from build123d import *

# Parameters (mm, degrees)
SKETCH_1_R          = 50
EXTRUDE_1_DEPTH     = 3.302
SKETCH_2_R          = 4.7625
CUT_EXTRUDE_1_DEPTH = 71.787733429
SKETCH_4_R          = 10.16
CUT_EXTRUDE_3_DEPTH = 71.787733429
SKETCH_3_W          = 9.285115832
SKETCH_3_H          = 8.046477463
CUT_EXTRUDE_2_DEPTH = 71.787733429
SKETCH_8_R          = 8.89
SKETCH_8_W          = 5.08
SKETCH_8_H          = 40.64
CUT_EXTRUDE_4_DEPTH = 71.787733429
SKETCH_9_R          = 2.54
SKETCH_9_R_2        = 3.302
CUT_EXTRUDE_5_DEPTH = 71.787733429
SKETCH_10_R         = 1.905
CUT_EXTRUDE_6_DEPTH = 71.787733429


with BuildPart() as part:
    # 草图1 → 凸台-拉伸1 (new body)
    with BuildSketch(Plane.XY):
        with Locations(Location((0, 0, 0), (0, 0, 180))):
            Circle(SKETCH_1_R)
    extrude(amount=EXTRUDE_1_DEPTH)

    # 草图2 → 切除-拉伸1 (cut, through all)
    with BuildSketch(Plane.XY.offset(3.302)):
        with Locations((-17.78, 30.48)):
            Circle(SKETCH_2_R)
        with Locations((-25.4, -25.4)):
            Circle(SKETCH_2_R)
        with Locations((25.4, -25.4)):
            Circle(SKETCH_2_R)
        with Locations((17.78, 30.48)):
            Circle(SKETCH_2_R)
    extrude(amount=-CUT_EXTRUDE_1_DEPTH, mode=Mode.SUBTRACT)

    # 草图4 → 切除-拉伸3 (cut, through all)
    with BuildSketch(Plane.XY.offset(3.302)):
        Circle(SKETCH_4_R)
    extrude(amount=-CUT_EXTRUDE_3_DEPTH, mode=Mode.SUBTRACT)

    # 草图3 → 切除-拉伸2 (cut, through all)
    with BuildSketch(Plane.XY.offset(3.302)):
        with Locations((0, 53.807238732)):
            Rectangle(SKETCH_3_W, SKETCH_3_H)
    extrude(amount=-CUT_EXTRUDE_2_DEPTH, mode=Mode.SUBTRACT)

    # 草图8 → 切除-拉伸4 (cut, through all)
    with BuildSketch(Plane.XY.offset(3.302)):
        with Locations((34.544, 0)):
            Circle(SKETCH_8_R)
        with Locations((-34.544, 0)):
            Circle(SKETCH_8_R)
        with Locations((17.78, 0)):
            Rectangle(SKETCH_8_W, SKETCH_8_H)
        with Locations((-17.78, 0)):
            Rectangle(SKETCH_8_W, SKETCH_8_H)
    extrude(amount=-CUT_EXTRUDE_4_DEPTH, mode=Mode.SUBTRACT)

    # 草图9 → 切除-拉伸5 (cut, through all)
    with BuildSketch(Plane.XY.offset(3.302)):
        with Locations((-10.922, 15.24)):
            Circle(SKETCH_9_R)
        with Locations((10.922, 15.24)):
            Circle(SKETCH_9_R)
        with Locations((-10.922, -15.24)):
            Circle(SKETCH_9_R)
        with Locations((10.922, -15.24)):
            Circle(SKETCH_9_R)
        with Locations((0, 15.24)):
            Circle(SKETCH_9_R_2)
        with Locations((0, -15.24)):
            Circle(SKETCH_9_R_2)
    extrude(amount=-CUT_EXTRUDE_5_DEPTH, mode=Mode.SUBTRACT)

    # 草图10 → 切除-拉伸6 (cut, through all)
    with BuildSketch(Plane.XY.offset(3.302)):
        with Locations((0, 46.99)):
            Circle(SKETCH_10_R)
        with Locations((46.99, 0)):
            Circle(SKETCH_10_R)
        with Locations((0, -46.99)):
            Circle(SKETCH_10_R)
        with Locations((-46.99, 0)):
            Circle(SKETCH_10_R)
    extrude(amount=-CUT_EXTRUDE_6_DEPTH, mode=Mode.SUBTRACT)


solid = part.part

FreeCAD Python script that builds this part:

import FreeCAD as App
import Part
import Sketcher
from FreeCAD import Vector
Q = App.Units.Quantity


def add_polygon(sketch, points):
    """Adds a closed chain of lines whose ends are joined by coincident constraints."""
    first, n = sketch.GeometryCount, len(points)
    for a, b in zip(points, points[1:] + points[:1]):
        sketch.addGeometry(Part.LineSegment(App.Vector(*a, 0), App.Vector(*b, 0)), False)
    for i in range(n):
        sketch.addConstraint(Sketcher.Constraint("Coincident", first + i, 2, first + (i + 1) % n, 1))

doc = App.newDocument("Part")
body = doc.addObject("PartDesign::Body", "Body")

sketch1 = doc.addObject("Sketcher::SketchObject", "Sketch")
body.addObject(sketch1)
sketch1.AttachmentSupport = (doc.XY_Plane, [""])
sketch1.MapMode = "FlatFace"
sketch1.addGeometry(Part.Circle(Vector(0, 0, 0), Vector(0, 0, 1), 50), False)
sketch1.addConstraint(Sketcher.Constraint("Coincident", 0, 3, -1, 1))
sketch1.addConstraint(Sketcher.Constraint("Diameter", 0, 100.0))
pad1 = doc.addObject("PartDesign::Pad", "Pad")
body.addObject(pad1)
pad1.Profile = sketch1
pad1.Length = Q("0.13 in")

sketch2 = doc.addObject("Sketcher::SketchObject", "Sketch001")
body.addObject(sketch2)
sketch2.AttachmentSupport = (doc.XY_Plane, [""])
sketch2.MapMode = "FlatFace"
sketch2.AttachmentOffset = App.Placement(Vector(0, 0, 0.13 * 25.4), App.Rotation())
sketch2.addGeometry(Part.Circle(Vector(-17.8, 30.5, 0), Vector(0, 0, 1), 4.8), False)
sketch2.addGeometry(Part.Circle(Vector(-25.4, -25.4, 0), Vector(0, 0, 1), 4.8), False)
sketch2.addGeometry(Part.Circle(Vector(25.4, -25.4, 0), Vector(0, 0, 1), 4.8), False)
sketch2.addGeometry(Part.Circle(Vector(17.8, 30.5, 0), Vector(0, 0, 1), 4.8), False)
sketch2.addConstraint(Sketcher.Constraint("Equal", 0, 1))
sketch2.addConstraint(Sketcher.Constraint("Equal", 1, 2))
sketch2.addConstraint(Sketcher.Constraint("Equal", 2, 3))
sketch2.addConstraint(Sketcher.Constraint("Symmetric", 1, 3, 2, 3, -2))
sketch2.addConstraint(Sketcher.Constraint("Symmetric", 0, 3, 3, 3, -2))
sketch2.addConstraint(Sketcher.Constraint("Diameter", 0, Q("0.375 in")))
sketch2.addConstraint(Sketcher.Constraint("DistanceX", 1, 3, -1, 1, Q("1 in")))
sketch2.addConstraint(Sketcher.Constraint("DistanceY", 1, 3, -1, 1, Q("1 in")))
sketch2.addConstraint(Sketcher.Constraint("DistanceX", 0, 3, -1, 1, Q("0.7 in")))
sketch2.addConstraint(Sketcher.Constraint("DistanceY", -1, 1, 0, 3, Q("1.2 in")))
pocket1 = doc.addObject("PartDesign::Pocket", "Pocket")
body.addObject(pocket1)
pocket1.Profile = sketch2
pocket1.Type = "ThroughAll"

sketch3 = doc.addObject("Sketcher::SketchObject", "Sketch002")
body.addObject(sketch3)
sketch3.AttachmentSupport = (doc.XY_Plane, [""])
sketch3.MapMode = "FlatFace"
sketch3.AttachmentOffset = App.Placement(Vector(0, 0, 0.13 * 25.4), App.Rotation())
sketch3.addGeometry(Part.Circle(Vector(0, 0, 0), Vector(0, 0, 1), 10), False)
sketch3.addConstraint(Sketcher.Constraint("Coincident", 0, 3, -1, 1))
sketch3.addConstraint(Sketcher.Constraint("Diameter", 0, Q("0.8 in")))
pocket2 = doc.addObject("PartDesign::Pocket", "Pocket001")
body.addObject(pocket2)
pocket2.Profile = sketch3
pocket2.Type = "ThroughAll"

sketch4 = doc.addObject("Sketcher::SketchObject", "Sketch003")
body.addObject(sketch4)
sketch4.AttachmentSupport = (doc.XY_Plane, [""])
sketch4.MapMode = "FlatFace"
sketch4.AttachmentOffset = App.Placement(Vector(0, 0, 0.13 * 25.4), App.Rotation())
add_polygon(sketch4, [(-5, 58), (-5, 50), (5, 50), (5, 58)])
sketch4.addConstraint(Sketcher.Constraint("Vertical", 0))
sketch4.addConstraint(Sketcher.Constraint("Horizontal", 1))
sketch4.addConstraint(Sketcher.Constraint("Vertical", 2))
sketch4.addConstraint(Sketcher.Constraint("Horizontal", 3))
sketch4.addConstraint(Sketcher.Constraint("DistanceY", -1, 1, 0, 2, Q("1.96 in")))
sketch4.addConstraint(Sketcher.Constraint("DistanceX", 1, 1, 1, 2, 9.285116))
sketch4.addConstraint(Sketcher.Constraint("DistanceY", 0, 2, 0, 1, 8.046477))
sketch4.addConstraint(Sketcher.Constraint("DistanceX", 0, 2, -1, 1, 4.642558))
pocket3 = doc.addObject("PartDesign::Pocket", "Pocket002")
body.addObject(pocket3)
pocket3.Profile = sketch4
pocket3.Type = "ThroughAll"

sketch5 = doc.addObject("Sketcher::SketchObject", "Sketch004")
body.addObject(sketch5)
sketch5.AttachmentSupport = (doc.XY_Plane, [""])
sketch5.MapMode = "FlatFace"
sketch5.AttachmentOffset = App.Placement(Vector(0, 0, 0.13 * 25.4), App.Rotation())
sketch5.addGeometry(Part.Circle(Vector(35, 0, 0), Vector(0, 0, 1), 9), False)
sketch5.addGeometry(Part.Circle(Vector(-35, 0, 0), Vector(0, 0, 1), 9), False)
add_polygon(sketch5, [(15, 20), (15, -20), (20, -20), (20, 20)])
add_polygon(sketch5, [(-20, 20), (-20, -20), (-15, -20), (-15, 20)])
sketch5.addConstraint(Sketcher.Constraint("Vertical", 2))
sketch5.addConstraint(Sketcher.Constraint("Horizontal", 3))
sketch5.addConstraint(Sketcher.Constraint("Vertical", 4))
sketch5.addConstraint(Sketcher.Constraint("Horizontal", 5))
sketch5.addConstraint(Sketcher.Constraint("Vertical", 6))
sketch5.addConstraint(Sketcher.Constraint("Horizontal", 7))
sketch5.addConstraint(Sketcher.Constraint("Vertical", 8))
sketch5.addConstraint(Sketcher.Constraint("Horizontal", 9))
sketch5.addConstraint(Sketcher.Constraint("Equal", 0, 1))
sketch5.addConstraint(Sketcher.Constraint("Symmetric", 0, 3, 1, 3, -1, 1))
sketch5.addConstraint(Sketcher.Constraint("Symmetric", 4, 2, 6, 2, -1, 1))
sketch5.addConstraint(Sketcher.Constraint("Symmetric", 2, 2, 8, 2, -1, 1))
sketch5.addConstraint(Sketcher.Constraint("PointOnObject", 0, 3, -1))
sketch5.addConstraint(Sketcher.Constraint("Horizontal", 3, 2, 6, 2))
sketch5.addConstraint(Sketcher.Constraint("Diameter", 0, Q("0.7 in")))
sketch5.addConstraint(Sketcher.Constraint("DistanceX", 3, 1, 3, 2, Q("0.2 in")))
sketch5.addConstraint(Sketcher.Constraint("DistanceY", 2, 2, 2, 1, Q("1.6 in")))
sketch5.addConstraint(Sketcher.Constraint("DistanceX", -1, 1, 2, 2, Q("0.6 in")))
sketch5.addConstraint(Sketcher.Constraint("DistanceX", -1, 1, 0, 3, Q("1.36 in")))
pocket4 = doc.addObject("PartDesign::Pocket", "Pocket003")
body.addObject(pocket4)
pocket4.Profile = sketch5
pocket4.Type = "ThroughAll"

sketch6 = doc.addObject("Sketcher::SketchObject", "Sketch005")
body.addObject(sketch6)
sketch6.AttachmentSupport = (doc.XY_Plane, [""])
sketch6.MapMode = "FlatFace"
sketch6.AttachmentOffset = App.Placement(Vector(0, 0, 0.13 * 25.4), App.Rotation())
sketch6.addGeometry(Part.Circle(Vector(-10.9, 15.2, 0), Vector(0, 0, 1), 2.5), False)
sketch6.addGeometry(Part.Circle(Vector(10.9, 15.2, 0), Vector(0, 0, 1), 2.5), False)
sketch6.addGeometry(Part.Circle(Vector(-10.9, -15.2, 0), Vector(0, 0, 1), 2.5), False)
sketch6.addGeometry(Part.Circle(Vector(10.9, -15.2, 0), Vector(0, 0, 1), 2.5), False)
sketch6.addGeometry(Part.Circle(Vector(0, 15.2, 0), Vector(0, 0, 1), 3.3), False)
sketch6.addGeometry(Part.Circle(Vector(0, -15.2, 0), Vector(0, 0, 1), 3.3), False)
sketch6.addConstraint(Sketcher.Constraint("Equal", 0, 1))
sketch6.addConstraint(Sketcher.Constraint("Equal", 1, 2))
sketch6.addConstraint(Sketcher.Constraint("Equal", 2, 3))
sketch6.addConstraint(Sketcher.Constraint("Equal", 4, 5))
sketch6.addConstraint(Sketcher.Constraint("Symmetric", 1, 3, 2, 3, -1, 1))
sketch6.addConstraint(Sketcher.Constraint("Symmetric", 0, 3, 3, 3, -1, 1))
sketch6.addConstraint(Sketcher.Constraint("Symmetric", 4, 3, 5, 3, -1, 1))
sketch6.addConstraint(Sketcher.Constraint("Symmetric", 0, 3, 1, 3, -2))
sketch6.addConstraint(Sketcher.Constraint("PointOnObject", 4, 3, -2))
sketch6.addConstraint(Sketcher.Constraint("Horizontal", 1, 3, 4, 3))
sketch6.addConstraint(Sketcher.Constraint("Diameter", 0, Q("0.2 in")))
sketch6.addConstraint(Sketcher.Constraint("Diameter", 4, Q("0.26 in")))
sketch6.addConstraint(Sketcher.Constraint("DistanceY", -1, 1, 0, 3, Q("0.6 in")))
sketch6.addConstraint(Sketcher.Constraint("DistanceX", 0, 3, -1, 1, Q("0.43 in")))
pocket5 = doc.addObject("PartDesign::Pocket", "Pocket004")
body.addObject(pocket5)
pocket5.Profile = sketch6
pocket5.Type = "ThroughAll"

sketch7 = doc.addObject("Sketcher::SketchObject", "Sketch006")
body.addObject(sketch7)
sketch7.AttachmentSupport = (doc.XY_Plane, [""])
sketch7.MapMode = "FlatFace"
sketch7.AttachmentOffset = App.Placement(Vector(0, 0, 0.13 * 25.4), App.Rotation())
sketch7.addGeometry(Part.Circle(Vector(0, 47, 0), Vector(0, 0, 1), 1.9), False)
sketch7.addGeometry(Part.Circle(Vector(47, 0, 0), Vector(0, 0, 1), 1.9), False)
sketch7.addGeometry(Part.Circle(Vector(0, -47, 0), Vector(0, 0, 1), 1.9), False)
sketch7.addGeometry(Part.Circle(Vector(-47, 0, 0), Vector(0, 0, 1), 1.9), False)
sketch7.addConstraint(Sketcher.Constraint("Equal", 0, 1))
sketch7.addConstraint(Sketcher.Constraint("Equal", 1, 2))
sketch7.addConstraint(Sketcher.Constraint("Equal", 2, 3))
sketch7.addConstraint(Sketcher.Constraint("Symmetric", 0, 3, 2, 3, -1, 1))
sketch7.addConstraint(Sketcher.Constraint("Symmetric", 1, 3, 3, 3, -1, 1))
sketch7.addConstraint(Sketcher.Constraint("PointOnObject", 0, 3, -2))
sketch7.addConstraint(Sketcher.Constraint("PointOnObject", 1, 3, -1))
sketch7.addConstraint(Sketcher.Constraint("Diameter", 0, Q("0.15 in")))
sketch7.addConstraint(Sketcher.Constraint("DistanceY", 2, 3, 0, 3, Q("3.7 in")))
sketch7.addConstraint(Sketcher.Constraint("DistanceX", 3, 3, 1, 3, Q("3.7 in")))
pocket6 = doc.addObject("PartDesign::Pocket", "Pocket005")
body.addObject(pocket6)
pocket6.Profile = sketch7
pocket6.Type = "ThroughAll"

doc.recompute()
